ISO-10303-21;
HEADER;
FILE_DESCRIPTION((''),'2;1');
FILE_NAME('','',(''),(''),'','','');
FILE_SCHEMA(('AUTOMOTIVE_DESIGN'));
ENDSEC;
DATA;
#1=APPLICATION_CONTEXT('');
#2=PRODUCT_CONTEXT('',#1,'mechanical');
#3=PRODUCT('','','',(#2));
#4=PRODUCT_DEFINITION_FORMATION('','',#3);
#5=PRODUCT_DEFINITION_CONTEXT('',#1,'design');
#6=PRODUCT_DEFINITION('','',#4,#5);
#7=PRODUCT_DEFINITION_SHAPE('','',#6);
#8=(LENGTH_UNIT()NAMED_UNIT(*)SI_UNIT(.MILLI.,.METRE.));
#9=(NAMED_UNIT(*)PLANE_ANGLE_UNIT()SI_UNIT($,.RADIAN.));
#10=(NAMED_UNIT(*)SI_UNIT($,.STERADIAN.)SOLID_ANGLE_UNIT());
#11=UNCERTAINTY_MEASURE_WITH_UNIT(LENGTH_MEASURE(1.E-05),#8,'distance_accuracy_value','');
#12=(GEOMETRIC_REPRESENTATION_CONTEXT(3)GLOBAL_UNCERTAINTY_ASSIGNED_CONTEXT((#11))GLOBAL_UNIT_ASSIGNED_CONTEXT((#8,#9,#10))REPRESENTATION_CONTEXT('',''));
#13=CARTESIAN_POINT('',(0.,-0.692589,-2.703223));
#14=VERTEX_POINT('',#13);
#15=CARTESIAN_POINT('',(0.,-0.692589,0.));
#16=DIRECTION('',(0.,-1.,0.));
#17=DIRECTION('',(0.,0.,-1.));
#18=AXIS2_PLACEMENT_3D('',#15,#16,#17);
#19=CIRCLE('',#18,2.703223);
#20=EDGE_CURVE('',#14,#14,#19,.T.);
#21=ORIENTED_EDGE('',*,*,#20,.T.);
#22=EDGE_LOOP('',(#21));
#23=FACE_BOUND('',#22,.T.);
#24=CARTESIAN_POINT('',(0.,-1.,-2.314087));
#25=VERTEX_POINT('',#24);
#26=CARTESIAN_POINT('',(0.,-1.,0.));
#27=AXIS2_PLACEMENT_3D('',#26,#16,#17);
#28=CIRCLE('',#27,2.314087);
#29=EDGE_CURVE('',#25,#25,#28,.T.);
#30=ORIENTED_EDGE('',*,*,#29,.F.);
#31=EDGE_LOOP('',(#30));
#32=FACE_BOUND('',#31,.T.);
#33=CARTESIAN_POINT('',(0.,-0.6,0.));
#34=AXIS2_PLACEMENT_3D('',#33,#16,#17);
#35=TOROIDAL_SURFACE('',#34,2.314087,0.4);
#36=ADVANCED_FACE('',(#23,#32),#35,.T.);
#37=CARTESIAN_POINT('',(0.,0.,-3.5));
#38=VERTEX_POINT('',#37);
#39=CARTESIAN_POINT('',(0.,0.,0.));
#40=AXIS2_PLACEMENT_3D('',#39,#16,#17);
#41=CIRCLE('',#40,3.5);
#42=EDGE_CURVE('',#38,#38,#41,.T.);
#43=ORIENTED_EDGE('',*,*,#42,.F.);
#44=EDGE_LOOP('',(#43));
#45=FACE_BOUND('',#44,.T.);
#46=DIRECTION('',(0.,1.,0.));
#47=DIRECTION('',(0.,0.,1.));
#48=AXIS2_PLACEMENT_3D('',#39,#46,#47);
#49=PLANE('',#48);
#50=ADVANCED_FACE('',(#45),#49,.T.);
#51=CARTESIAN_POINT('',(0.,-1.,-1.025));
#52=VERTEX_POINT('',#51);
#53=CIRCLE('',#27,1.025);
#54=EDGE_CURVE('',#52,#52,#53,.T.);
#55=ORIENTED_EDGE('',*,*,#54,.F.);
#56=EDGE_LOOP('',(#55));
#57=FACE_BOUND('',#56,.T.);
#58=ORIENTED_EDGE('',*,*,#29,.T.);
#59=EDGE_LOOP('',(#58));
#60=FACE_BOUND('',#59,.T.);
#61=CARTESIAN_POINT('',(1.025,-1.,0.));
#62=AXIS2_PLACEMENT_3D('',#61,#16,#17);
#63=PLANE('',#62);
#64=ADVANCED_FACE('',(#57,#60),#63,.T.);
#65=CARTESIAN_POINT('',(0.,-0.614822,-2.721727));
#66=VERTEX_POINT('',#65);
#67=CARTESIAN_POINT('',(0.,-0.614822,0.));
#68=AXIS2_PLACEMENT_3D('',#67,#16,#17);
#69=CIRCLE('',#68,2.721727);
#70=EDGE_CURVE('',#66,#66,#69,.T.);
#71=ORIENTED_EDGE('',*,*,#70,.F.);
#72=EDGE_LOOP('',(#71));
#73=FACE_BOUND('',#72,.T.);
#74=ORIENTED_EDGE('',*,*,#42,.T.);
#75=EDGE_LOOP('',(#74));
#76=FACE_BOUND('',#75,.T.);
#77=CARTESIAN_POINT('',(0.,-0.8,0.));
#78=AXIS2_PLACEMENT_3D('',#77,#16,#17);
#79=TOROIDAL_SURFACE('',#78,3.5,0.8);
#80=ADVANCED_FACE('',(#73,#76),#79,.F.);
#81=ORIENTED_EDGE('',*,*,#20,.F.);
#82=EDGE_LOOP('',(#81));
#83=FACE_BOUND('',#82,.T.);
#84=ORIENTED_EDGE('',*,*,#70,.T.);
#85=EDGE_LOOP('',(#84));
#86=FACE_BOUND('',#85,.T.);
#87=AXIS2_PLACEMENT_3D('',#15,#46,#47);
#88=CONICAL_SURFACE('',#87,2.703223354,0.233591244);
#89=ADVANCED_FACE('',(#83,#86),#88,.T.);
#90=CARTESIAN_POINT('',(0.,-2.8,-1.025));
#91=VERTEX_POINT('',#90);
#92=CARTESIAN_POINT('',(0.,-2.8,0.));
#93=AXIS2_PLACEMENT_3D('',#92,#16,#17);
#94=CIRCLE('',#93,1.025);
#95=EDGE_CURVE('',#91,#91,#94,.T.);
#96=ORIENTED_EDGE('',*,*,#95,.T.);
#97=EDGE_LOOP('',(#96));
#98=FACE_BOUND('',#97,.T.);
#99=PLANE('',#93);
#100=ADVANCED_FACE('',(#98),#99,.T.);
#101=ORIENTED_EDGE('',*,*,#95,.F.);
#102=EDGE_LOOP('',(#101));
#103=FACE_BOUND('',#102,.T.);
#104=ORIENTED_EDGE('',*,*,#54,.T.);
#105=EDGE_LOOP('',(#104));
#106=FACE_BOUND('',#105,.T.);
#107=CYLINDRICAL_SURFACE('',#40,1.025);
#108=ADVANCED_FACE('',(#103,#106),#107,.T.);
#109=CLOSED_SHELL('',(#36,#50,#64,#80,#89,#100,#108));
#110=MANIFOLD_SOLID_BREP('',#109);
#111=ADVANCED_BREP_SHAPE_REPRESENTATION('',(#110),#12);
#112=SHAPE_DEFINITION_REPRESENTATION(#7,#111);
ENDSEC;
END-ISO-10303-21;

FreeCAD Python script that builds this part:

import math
import FreeCAD as App
import Part
import Sketcher
from FreeCAD import Vector
Q = App.Units.Quantity

doc = App.newDocument("Part")
body = doc.addObject("PartDesign::Body", "Body")

sketch1 = body.newObject("Sketcher::SketchObject", "Sketch")
sketch1.AttachmentSupport = (doc.getObject("XY_Plane"), [""])
sketch1.MapMode = "FlatFace"
sketch1.addGeometry(Part.LineSegment(Vector(0, 0, 0), Vector(0, -2.8, 0)), False)
sketch1.addGeometry(Part.LineSegment(Vector(0, -2.8, 0), Vector(1.02, -2.8, 0)), False)
sketch1.addGeometry(Part.LineSegment(Vector(1.02, -2.8, 0), Vector(1.02, -1, 0)), False)
sketch1.addGeometry(Part.LineSegment(Vector(1.02, -1, 0), Vector(2.31, -1, 0)), False)
sketch1.addGeometry(Part.ArcOfCircle(Part.Circle(Vector(2.31, -0.6, 0), Vector(0, 0, 1), 0.4), math.radians(-90), math.radians(-13)), False)
sketch1.addGeometry(Part.LineSegment(Vector(2.7, -0.69, 0), Vector(2.72, -0.61, 0)), False)
sketch1.addGeometry(Part.ArcOfCircle(Part.Circle(Vector(3.5, -0.8, 0), Vector(0, 0, 1), 0.8), math.radians(90), math.radians(167)), False)
sketch1.addGeometry(Part.LineSegment(Vector(3.5, 0, 0), Vector(0, 0, 0)), False)
sketch1.addConstraint(Sketcher.Constraint("Coincident", 0, 2, 1, 1))
sketch1.addConstraint(Sketcher.Constraint("Coincident", 1, 2, 2, 1))
sketch1.addConstraint(Sketcher.Constraint("Coincident", 2, 2, 3, 1))
sketch1.addConstraint(Sketcher.Constraint("Tangent", 3, 2, 4, 1))
sketch1.addConstraint(Sketcher.Constraint("Tangent", 4, 2, 5, 1))
sketch1.addConstraint(Sketcher.Constraint("Tangent", 5, 2, 6, 2))
sketch1.addConstraint(Sketcher.Constraint("Tangent", 6, 1, 7, 1))
sketch1.addConstraint(Sketcher.Constraint("Coincident", 7, 2, 0, 1))
sketch1.addConstraint(Sketcher.Constraint("Vertical", 0))
sketch1.addConstraint(Sketcher.Constraint("Horizontal", 1))
sketch1.addConstraint(Sketcher.Constraint("Vertical", 2))
sketch1.addConstraint(Sketcher.Constraint("Horizontal", 3))
sketch1.addConstraint(Sketcher.Constraint("Horizontal", 7))
sketch1.addConstraint(Sketcher.Constraint("Coincident", 7, 2, -1, 1))
sketch1.addConstraint(Sketcher.Constraint("Radius", 4, Q("0.4 mm")))
sketch1.addConstraint(Sketcher.Constraint("Radius", 6, Q("0.8 mm")))
sketch1.addConstraint(Sketcher.Constraint("DistanceX", 7, 2, 7, 1, Q("3.5 mm")))
sketch1.addConstraint(Sketcher.Constraint("DistanceY", 0, 2, 0, 1, Q("2.8 mm")))
sketch1.addConstraint(Sketcher.Constraint("DistanceY", 2, 1, 2, 2, Q("1.8 mm")))
sketch1.addConstraint(Sketcher.Constraint("DistanceX", 1, 1, 1, 2, Q("1.025 mm")))
sketch1.addConstraint(Sketcher.Constraint("Distance", 5, Q("0.079938 mm")))
revolution = body.newObject("PartDesign::Revolution", "Revolution")
revolution.Profile = sketch1
revolution.ReferenceAxis = (sketch1, ["V_Axis"])
revolution.Angle = 360

doc.recompute()
